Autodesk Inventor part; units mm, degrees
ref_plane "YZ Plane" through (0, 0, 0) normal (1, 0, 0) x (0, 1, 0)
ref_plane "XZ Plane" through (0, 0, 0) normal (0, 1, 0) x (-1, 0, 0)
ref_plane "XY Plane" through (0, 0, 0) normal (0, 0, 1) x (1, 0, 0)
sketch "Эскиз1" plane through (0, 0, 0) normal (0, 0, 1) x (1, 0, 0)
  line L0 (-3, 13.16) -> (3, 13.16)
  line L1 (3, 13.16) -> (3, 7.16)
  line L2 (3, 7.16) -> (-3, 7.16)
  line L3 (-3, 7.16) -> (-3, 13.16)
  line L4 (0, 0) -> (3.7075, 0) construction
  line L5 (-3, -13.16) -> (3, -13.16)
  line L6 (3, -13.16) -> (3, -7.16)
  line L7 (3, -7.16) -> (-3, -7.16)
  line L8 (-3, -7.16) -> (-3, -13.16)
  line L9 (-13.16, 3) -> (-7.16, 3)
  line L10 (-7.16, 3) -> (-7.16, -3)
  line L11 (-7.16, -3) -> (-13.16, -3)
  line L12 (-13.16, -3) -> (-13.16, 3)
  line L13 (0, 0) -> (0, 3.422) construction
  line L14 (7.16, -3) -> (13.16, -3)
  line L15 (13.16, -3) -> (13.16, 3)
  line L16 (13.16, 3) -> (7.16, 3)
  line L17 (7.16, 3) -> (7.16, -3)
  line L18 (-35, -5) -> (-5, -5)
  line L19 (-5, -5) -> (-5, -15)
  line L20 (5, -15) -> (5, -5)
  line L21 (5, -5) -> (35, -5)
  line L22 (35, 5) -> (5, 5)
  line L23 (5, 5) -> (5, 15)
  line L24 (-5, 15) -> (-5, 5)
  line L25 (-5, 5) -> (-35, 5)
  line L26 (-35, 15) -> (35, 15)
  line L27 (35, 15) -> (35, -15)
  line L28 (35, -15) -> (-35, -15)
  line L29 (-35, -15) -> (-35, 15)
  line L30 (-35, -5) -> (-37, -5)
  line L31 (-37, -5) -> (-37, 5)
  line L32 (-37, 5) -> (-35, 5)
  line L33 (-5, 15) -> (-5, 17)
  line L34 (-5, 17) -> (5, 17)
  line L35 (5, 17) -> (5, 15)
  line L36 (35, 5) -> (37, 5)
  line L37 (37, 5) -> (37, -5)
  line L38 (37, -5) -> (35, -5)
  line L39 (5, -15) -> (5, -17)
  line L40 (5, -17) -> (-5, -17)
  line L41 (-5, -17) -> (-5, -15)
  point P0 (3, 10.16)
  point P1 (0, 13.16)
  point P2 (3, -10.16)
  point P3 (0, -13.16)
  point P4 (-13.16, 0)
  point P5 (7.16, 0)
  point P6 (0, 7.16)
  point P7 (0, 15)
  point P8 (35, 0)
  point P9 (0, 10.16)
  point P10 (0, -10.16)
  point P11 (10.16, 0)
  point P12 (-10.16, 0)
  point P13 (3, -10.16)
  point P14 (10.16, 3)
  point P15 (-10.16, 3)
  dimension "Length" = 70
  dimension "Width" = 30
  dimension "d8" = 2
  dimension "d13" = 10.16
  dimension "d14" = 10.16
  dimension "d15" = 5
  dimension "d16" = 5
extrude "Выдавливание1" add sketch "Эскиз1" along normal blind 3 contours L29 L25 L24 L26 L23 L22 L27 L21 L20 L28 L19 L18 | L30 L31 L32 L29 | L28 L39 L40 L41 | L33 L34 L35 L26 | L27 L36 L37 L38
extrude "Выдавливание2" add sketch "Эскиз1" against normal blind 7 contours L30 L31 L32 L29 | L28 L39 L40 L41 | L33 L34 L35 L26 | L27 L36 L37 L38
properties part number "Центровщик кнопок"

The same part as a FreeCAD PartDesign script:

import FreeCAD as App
import Part
import Sketcher
from FreeCAD import Vector
Q = App.Units.Quantity

doc = App.newDocument("Part")
params = doc.addObject("Spreadsheet::Sheet", "Params")
for row, (alias, value) in enumerate([
    ("sketch1_width", "32 mm"),
    ("sketch1_height", "12 mm"),
    ("pad1_length", "3 mm"),
    ("sketch2_width", "2 mm"),
    ("pad2_length", "7 mm"),
], start=1):
    params.set(f"A{row}", alias)
    params.set(f"B{row}", "=" + value)
    params.setAlias(f"B{row}", alias)

body = doc.addObject("PartDesign::Body", "Body")

sketch1 = body.newObject("Sketcher::SketchObject", "Sketch")
sketch1.AttachmentSupport = (doc.getObject("XY_Plane"), [""])
sketch1.MapMode = "FlatFace"
sketch1.addGeometry([
    Part.LineSegment(Vector(-5, 5, 0), Vector(-37, 5, 0)),
    Part.LineSegment(Vector(-37, 5, 0), Vector(-37, -5, 0)),
    Part.LineSegment(Vector(-37, -5, 0), Vector(-5, -5, 0)),
    Part.LineSegment(Vector(-5, -5, 0), Vector(-5, -17, 0)),
    Part.LineSegment(Vector(-5, -17, 0), Vector(5, -17, 0)),
    Part.LineSegment(Vector(5, -17, 0), Vector(5, -5, 0)),
    Part.LineSegment(Vector(5, -5, 0), Vector(37, -5, 0)),
    Part.LineSegment(Vector(37, -5, 0), Vector(37, 5, 0)),
    Part.LineSegment(Vector(37, 5, 0), Vector(5, 5, 0)),
    Part.LineSegment(Vector(5, 5, 0), Vector(5, 17, 0)),
    Part.LineSegment(Vector(5, 17, 0), Vector(-5, 17, 0)),
    Part.LineSegment(Vector(-5, 17, 0), Vector(-5, 5, 0)),
    Part.LineSegment(Vector(3, -13, 0), Vector(-3, -13, 0)),
    Part.LineSegment(Vector(-3, -13, 0), Vector(-3, -7, 0)),
    Part.LineSegment(Vector(-3, -7, 0), Vector(3, -7, 0)),
    Part.LineSegment(Vector(3, -7, 0), Vector(3, -13, 0)),
    Part.LineSegment(Vector(-13, -3, 0), Vector(-13, 3, 0)),
    Part.LineSegment(Vector(-13, 3, 0), Vector(-7, 3, 0)),
    Part.LineSegment(Vector(-7, 3, 0), Vector(-7, -3, 0)),
    Part.LineSegment(Vector(-7, -3, 0), Vector(-13, -3, 0)),
    Part.LineSegment(Vector(13, -3, 0), Vector(7, -3, 0)),
    Part.LineSegment(Vector(7, -3, 0), Vector(7, 3, 0)),
    Part.LineSegment(Vector(7, 3, 0), Vector(13, 3, 0)),
    Part.LineSegment(Vector(13, 3, 0), Vector(13, -3, 0)),
    Part.LineSegment(Vector(-3, 7, 0), Vector(-3, 13, 0)),
    Part.LineSegment(Vector(-3, 13, 0), Vector(3, 13, 0)),
    Part.LineSegment(Vector(3, 13, 0), Vector(3, 7, 0)),
    Part.LineSegment(Vector(3, 7, 0), Vector(-3, 7, 0)),
], False)
sketch1.addConstraint([
    Sketcher.Constraint("Coincident", 0, 2, 1, 1),
    Sketcher.Constraint("Coincident", 1, 2, 2, 1),
    Sketcher.Constraint("Coincident", 2, 2, 3, 1),
    Sketcher.Constraint("Coincident", 3, 2, 4, 1),
    Sketcher.Constraint("Coincident", 4, 2, 5, 1),
    Sketcher.Constraint("Coincident", 5, 2, 6, 1),
    Sketcher.Constraint("Coincident", 6, 2, 7, 1),
    Sketcher.Constraint("Coincident", 7, 2, 8, 1),
    Sketcher.Constraint("Coincident", 8, 2, 9, 1),
    Sketcher.Constraint("Coincident", 9, 2, 10, 1),
    Sketcher.Constraint("Coincident", 10, 2, 11, 1),
    Sketcher.Constraint("Coincident", 11, 2, 0, 1),
    Sketcher.Constraint("Coincident", 12, 2, 13, 1),
    Sketcher.Constraint("Coincident", 13, 2, 14, 1),
    Sketcher.Constraint("Coincident", 14, 2, 15, 1),
    Sketcher.Constraint("Coincident", 15, 2, 12, 1),
    Sketcher.Constraint("Coincident", 16, 2, 17, 1),
    Sketcher.Constraint("Coincident", 17, 2, 18, 1),
    Sketcher.Constraint("Coincident", 18, 2, 19, 1),
    Sketcher.Constraint("Coincident", 19, 2, 16, 1),
    Sketcher.Constraint("Coincident", 20, 2, 21, 1),
    Sketcher.Constraint("Coincident", 21, 2, 22, 1),
    Sketcher.Constraint("Coincident", 22, 2, 23, 1),
    Sketcher.Constraint("Coincident", 23, 2, 20, 1),
    Sketcher.Constraint("Coincident", 24, 2, 25, 1),
    Sketcher.Constraint("Coincident", 25, 2, 26, 1),
    Sketcher.Constraint("Coincident", 26, 2, 27, 1),
    Sketcher.Constraint("Coincident", 27, 2, 24, 1),
    Sketcher.Constraint("Horizontal", 0),
    Sketcher.Constraint("Vertical", 1),
    Sketcher.Constraint("Horizontal", 2),
    Sketcher.Constraint("Vertical", 3),
    Sketcher.Constraint("Horizontal", 4),
    Sketcher.Constraint("Vertical", 5),
    Sketcher.Constraint("Horizontal", 6),
    Sketcher.Constraint("Vertical", 7),
    Sketcher.Constraint("Horizontal", 8),
    Sketcher.Constraint("Vertical", 9),
    Sketcher.Constraint("Horizontal", 10),
    Sketcher.Constraint("Vertical", 11),
    Sketcher.Constraint("Horizontal", 12),
    Sketcher.Constraint("Vertical", 13),
    Sketcher.Constraint("Horizontal", 14),
    Sketcher.Constraint("Vertical", 15),
    Sketcher.Constraint("Vertical", 16),
    Sketcher.Constraint("Horizontal", 17),
    Sketcher.Constraint("Vertical", 18),
    Sketcher.Constraint("Horizontal", 19),
    Sketcher.Constraint("Horizontal", 20),
    Sketcher.Constraint("Vertical", 21),
    Sketcher.Constraint("Horizontal", 22),
    Sketcher.Constraint("Vertical", 23),
    Sketcher.Constraint("Vertical", 24),
    Sketcher.Constraint("Horizontal", 25),
    Sketcher.Constraint("Vertical", 26),
    Sketcher.Constraint("Horizontal", 27),
    Sketcher.Constraint("Symmetric", 0, 2, 6, 2, -1, 1),
    Sketcher.Constraint("Symmetric", 2, 2, 8, 2, -1, 1),
    Sketcher.Constraint("Symmetric", 4, 2, 10, 2, -1, 1),
    Sketcher.Constraint("Symmetric", 17, 2, 20, 2, -1, 1),
    Sketcher.Constraint("Symmetric", 19, 2, 22, 2, -1, 1),
    Sketcher.Constraint("Symmetric", 15, 2, 24, 2, -1, 1),
    Sketcher.Constraint("Symmetric", 13, 2, 26, 2, -1, 1),
    Sketcher.Constraint("Symmetric", 2, 2, 5, 2, -2),
    Sketcher.Constraint("Horizontal", 19, 2, 20, 2),
    Sketcher.Constraint("Vertical", 13, 2, 24, 2),
    Sketcher.Constraint("Equal", 14, 17),
    Sketcher.Constraint("Equal", 10, 1),
    Sketcher.Constraint("Equal", 27, 13),
    Sketcher.Constraint("Equal", 15, 16),
    Sketcher.Constraint("DistanceY", -1, 1, 0, 2, Q("5 mm")),
    Sketcher.Constraint("DistanceX", 3, 2, 12, 2, Q("2 mm")),
    Sketcher.Constraint("DistanceX", 0, 2, 0, 1, Q("32 mm")),
    Sketcher.Constraint("DistanceY", 3, 2, 3, 1, Q("12 mm")),
    Sketcher.Constraint("DistanceX", 16, 2, 13, 2, Q("10.16 mm")),
    Sketcher.Constraint("DistanceY", 13, 2, 16, 2, Q("10.16 mm")),
])
sketch1.setExpression("Constraints[72]", "Params.sketch1_width")
sketch1.setExpression("Constraints[73]", "Params.sketch1_height")
pad1 = body.newObject("PartDesign::Pad", "Pad")
pad1.Profile = sketch1
pad1.setExpression("Length", "Params.pad1_length")

sketch2 = body.newObject("Sketcher::SketchObject", "Sketch001")
sketch2.AttachmentSupport = (doc.getObject("XY_Plane"), [""])
sketch2.MapMode = "FlatFace"
sketch2.addGeometry([
    Part.LineSegment(Vector(-37, -5, 0), Vector(-35, -5, 0)),
    Part.LineSegment(Vector(-35, -5, 0), Vector(-35, 5, 0)),
    Part.LineSegment(Vector(-35, 5, 0), Vector(-37, 5, 0)),
    Part.LineSegment(Vector(-37, 5, 0), Vector(-37, -5, 0)),
    Part.LineSegment(Vector(5, -15, 0), Vector(-5, -15, 0)),
    Part.LineSegment(Vector(-5, -15, 0), Vector(-5, -17, 0)),
    Part.LineSegment(Vector(-5, -17, 0), Vector(5, -17, 0)),
    Part.LineSegment(Vector(5, -17, 0), Vector(5, -15, 0)),
    Part.LineSegment(Vector(-5, 17, 0), Vector(-5, 15, 0)),
    Part.LineSegment(Vector(-5, 15, 0), Vector(5, 15, 0)),
    Part.LineSegment(Vector(5, 15, 0), Vector(5, 17, 0)),
    Part.LineSegment(Vector(5, 17, 0), Vector(-5, 17, 0)),
    Part.LineSegment(Vector(35, 5, 0), Vector(35, -5, 0)),
    Part.LineSegment(Vector(35, -5, 0), Vector(37, -5, 0)),
    Part.LineSegment(Vector(37, -5, 0), Vector(37, 5, 0)),
    Part.LineSegment(Vector(37, 5, 0), Vector(35, 5, 0)),
], False)
sketch2.addConstraint([
    Sketcher.Constraint("Coincident", 0, 2, 1, 1),
    Sketcher.Constraint("Coincident", 1, 2, 2, 1),
    Sketcher.Constraint("Coincident", 2, 2, 3, 1),
    Sketcher.Constraint("Coincident", 3, 2, 0, 1),
    Sketcher.Constraint("Coincident", 4, 2, 5, 1),
    Sketcher.Constraint("Coincident", 5, 2, 6, 1),
    Sketcher.Constraint("Coincident", 6, 2, 7, 1),
    Sketcher.Constraint("Coincident", 7, 2, 4, 1),
    Sketcher.Constraint("Coincident", 8, 2, 9, 1),
    Sketcher.Constraint("Coincident", 9, 2, 10, 1),
    Sketcher.Constraint("Coincident", 10, 2, 11, 1),
    Sketcher.Constraint("Coincident", 11, 2, 8, 1),
    Sketcher.Constraint("Coincident", 12, 2, 13, 1),
    Sketcher.Constraint("Coincident", 13, 2, 14, 1),
    Sketcher.Constraint("Coincident", 14, 2, 15, 1),
    Sketcher.Constraint("Coincident", 15, 2, 12, 1),
    Sketcher.Constraint("Horizontal", 0),
    Sketcher.Constraint("Vertical", 1),
    Sketcher.Constraint("Horizontal", 2),
    Sketcher.Constraint("Vertical", 3),
    Sketcher.Constraint("Horizontal", 4),
    Sketcher.Constraint("Vertical", 5),
    Sketcher.Constraint("Horizontal", 6),
    Sketcher.Constraint("Vertical", 7),
    Sketcher.Constraint("Vertical", 8),
    Sketcher.Constraint("Horizontal", 9),
    Sketcher.Constraint("Vertical", 10),
    Sketcher.Constraint("Horizontal", 11),
    Sketcher.Constraint("Vertical", 12),
    Sketcher.Constraint("Horizontal", 13),
    Sketcher.Constraint("Vertical", 14),
    Sketcher.Constraint("Horizontal", 15),
    Sketcher.Constraint("Symmetric", 7, 2, 8, 2, -1, 1),
    Sketcher.Constraint("Symmetric", 5, 2, 10, 2, -1, 1),
    Sketcher.Constraint("Symmetric", 1, 2, 12, 2, -1, 1),
    Sketcher.Constraint("Symmetric", 3, 2, 14, 2, -1, 1),
    Sketcher.Constraint("Horizontal", 3, 2, 12, 2),
    Sketcher.Constraint("Vertical", 5, 2, 8, 2),
    Sketcher.Constraint("Equal", 11, 1),
    Sketcher.Constraint("Equal", 15, 5),
    Sketcher.Constraint("DistanceX", 0, 1, 0, 2, Q("2 mm")),
    Sketcher.Constraint("DistanceY", 0, 2, -1, 1, Q("5 mm")),
    Sketcher.Constraint("DistanceX", 0, 2, 4, 2, Q("30 mm")),
    Sketcher.Constraint("DistanceY", 4, 2, 8, 2, Q("30 mm")),
])
sketch2.setExpression("Constraints[40]", "Params.sketch2_width")
pad2 = body.newObject("PartDesign::Pad", "Pad001")
pad2.Profile = sketch2
pad2.setExpression("Length", "Params.pad2_length")
pad2.Reversed = True

doc.recompute()
